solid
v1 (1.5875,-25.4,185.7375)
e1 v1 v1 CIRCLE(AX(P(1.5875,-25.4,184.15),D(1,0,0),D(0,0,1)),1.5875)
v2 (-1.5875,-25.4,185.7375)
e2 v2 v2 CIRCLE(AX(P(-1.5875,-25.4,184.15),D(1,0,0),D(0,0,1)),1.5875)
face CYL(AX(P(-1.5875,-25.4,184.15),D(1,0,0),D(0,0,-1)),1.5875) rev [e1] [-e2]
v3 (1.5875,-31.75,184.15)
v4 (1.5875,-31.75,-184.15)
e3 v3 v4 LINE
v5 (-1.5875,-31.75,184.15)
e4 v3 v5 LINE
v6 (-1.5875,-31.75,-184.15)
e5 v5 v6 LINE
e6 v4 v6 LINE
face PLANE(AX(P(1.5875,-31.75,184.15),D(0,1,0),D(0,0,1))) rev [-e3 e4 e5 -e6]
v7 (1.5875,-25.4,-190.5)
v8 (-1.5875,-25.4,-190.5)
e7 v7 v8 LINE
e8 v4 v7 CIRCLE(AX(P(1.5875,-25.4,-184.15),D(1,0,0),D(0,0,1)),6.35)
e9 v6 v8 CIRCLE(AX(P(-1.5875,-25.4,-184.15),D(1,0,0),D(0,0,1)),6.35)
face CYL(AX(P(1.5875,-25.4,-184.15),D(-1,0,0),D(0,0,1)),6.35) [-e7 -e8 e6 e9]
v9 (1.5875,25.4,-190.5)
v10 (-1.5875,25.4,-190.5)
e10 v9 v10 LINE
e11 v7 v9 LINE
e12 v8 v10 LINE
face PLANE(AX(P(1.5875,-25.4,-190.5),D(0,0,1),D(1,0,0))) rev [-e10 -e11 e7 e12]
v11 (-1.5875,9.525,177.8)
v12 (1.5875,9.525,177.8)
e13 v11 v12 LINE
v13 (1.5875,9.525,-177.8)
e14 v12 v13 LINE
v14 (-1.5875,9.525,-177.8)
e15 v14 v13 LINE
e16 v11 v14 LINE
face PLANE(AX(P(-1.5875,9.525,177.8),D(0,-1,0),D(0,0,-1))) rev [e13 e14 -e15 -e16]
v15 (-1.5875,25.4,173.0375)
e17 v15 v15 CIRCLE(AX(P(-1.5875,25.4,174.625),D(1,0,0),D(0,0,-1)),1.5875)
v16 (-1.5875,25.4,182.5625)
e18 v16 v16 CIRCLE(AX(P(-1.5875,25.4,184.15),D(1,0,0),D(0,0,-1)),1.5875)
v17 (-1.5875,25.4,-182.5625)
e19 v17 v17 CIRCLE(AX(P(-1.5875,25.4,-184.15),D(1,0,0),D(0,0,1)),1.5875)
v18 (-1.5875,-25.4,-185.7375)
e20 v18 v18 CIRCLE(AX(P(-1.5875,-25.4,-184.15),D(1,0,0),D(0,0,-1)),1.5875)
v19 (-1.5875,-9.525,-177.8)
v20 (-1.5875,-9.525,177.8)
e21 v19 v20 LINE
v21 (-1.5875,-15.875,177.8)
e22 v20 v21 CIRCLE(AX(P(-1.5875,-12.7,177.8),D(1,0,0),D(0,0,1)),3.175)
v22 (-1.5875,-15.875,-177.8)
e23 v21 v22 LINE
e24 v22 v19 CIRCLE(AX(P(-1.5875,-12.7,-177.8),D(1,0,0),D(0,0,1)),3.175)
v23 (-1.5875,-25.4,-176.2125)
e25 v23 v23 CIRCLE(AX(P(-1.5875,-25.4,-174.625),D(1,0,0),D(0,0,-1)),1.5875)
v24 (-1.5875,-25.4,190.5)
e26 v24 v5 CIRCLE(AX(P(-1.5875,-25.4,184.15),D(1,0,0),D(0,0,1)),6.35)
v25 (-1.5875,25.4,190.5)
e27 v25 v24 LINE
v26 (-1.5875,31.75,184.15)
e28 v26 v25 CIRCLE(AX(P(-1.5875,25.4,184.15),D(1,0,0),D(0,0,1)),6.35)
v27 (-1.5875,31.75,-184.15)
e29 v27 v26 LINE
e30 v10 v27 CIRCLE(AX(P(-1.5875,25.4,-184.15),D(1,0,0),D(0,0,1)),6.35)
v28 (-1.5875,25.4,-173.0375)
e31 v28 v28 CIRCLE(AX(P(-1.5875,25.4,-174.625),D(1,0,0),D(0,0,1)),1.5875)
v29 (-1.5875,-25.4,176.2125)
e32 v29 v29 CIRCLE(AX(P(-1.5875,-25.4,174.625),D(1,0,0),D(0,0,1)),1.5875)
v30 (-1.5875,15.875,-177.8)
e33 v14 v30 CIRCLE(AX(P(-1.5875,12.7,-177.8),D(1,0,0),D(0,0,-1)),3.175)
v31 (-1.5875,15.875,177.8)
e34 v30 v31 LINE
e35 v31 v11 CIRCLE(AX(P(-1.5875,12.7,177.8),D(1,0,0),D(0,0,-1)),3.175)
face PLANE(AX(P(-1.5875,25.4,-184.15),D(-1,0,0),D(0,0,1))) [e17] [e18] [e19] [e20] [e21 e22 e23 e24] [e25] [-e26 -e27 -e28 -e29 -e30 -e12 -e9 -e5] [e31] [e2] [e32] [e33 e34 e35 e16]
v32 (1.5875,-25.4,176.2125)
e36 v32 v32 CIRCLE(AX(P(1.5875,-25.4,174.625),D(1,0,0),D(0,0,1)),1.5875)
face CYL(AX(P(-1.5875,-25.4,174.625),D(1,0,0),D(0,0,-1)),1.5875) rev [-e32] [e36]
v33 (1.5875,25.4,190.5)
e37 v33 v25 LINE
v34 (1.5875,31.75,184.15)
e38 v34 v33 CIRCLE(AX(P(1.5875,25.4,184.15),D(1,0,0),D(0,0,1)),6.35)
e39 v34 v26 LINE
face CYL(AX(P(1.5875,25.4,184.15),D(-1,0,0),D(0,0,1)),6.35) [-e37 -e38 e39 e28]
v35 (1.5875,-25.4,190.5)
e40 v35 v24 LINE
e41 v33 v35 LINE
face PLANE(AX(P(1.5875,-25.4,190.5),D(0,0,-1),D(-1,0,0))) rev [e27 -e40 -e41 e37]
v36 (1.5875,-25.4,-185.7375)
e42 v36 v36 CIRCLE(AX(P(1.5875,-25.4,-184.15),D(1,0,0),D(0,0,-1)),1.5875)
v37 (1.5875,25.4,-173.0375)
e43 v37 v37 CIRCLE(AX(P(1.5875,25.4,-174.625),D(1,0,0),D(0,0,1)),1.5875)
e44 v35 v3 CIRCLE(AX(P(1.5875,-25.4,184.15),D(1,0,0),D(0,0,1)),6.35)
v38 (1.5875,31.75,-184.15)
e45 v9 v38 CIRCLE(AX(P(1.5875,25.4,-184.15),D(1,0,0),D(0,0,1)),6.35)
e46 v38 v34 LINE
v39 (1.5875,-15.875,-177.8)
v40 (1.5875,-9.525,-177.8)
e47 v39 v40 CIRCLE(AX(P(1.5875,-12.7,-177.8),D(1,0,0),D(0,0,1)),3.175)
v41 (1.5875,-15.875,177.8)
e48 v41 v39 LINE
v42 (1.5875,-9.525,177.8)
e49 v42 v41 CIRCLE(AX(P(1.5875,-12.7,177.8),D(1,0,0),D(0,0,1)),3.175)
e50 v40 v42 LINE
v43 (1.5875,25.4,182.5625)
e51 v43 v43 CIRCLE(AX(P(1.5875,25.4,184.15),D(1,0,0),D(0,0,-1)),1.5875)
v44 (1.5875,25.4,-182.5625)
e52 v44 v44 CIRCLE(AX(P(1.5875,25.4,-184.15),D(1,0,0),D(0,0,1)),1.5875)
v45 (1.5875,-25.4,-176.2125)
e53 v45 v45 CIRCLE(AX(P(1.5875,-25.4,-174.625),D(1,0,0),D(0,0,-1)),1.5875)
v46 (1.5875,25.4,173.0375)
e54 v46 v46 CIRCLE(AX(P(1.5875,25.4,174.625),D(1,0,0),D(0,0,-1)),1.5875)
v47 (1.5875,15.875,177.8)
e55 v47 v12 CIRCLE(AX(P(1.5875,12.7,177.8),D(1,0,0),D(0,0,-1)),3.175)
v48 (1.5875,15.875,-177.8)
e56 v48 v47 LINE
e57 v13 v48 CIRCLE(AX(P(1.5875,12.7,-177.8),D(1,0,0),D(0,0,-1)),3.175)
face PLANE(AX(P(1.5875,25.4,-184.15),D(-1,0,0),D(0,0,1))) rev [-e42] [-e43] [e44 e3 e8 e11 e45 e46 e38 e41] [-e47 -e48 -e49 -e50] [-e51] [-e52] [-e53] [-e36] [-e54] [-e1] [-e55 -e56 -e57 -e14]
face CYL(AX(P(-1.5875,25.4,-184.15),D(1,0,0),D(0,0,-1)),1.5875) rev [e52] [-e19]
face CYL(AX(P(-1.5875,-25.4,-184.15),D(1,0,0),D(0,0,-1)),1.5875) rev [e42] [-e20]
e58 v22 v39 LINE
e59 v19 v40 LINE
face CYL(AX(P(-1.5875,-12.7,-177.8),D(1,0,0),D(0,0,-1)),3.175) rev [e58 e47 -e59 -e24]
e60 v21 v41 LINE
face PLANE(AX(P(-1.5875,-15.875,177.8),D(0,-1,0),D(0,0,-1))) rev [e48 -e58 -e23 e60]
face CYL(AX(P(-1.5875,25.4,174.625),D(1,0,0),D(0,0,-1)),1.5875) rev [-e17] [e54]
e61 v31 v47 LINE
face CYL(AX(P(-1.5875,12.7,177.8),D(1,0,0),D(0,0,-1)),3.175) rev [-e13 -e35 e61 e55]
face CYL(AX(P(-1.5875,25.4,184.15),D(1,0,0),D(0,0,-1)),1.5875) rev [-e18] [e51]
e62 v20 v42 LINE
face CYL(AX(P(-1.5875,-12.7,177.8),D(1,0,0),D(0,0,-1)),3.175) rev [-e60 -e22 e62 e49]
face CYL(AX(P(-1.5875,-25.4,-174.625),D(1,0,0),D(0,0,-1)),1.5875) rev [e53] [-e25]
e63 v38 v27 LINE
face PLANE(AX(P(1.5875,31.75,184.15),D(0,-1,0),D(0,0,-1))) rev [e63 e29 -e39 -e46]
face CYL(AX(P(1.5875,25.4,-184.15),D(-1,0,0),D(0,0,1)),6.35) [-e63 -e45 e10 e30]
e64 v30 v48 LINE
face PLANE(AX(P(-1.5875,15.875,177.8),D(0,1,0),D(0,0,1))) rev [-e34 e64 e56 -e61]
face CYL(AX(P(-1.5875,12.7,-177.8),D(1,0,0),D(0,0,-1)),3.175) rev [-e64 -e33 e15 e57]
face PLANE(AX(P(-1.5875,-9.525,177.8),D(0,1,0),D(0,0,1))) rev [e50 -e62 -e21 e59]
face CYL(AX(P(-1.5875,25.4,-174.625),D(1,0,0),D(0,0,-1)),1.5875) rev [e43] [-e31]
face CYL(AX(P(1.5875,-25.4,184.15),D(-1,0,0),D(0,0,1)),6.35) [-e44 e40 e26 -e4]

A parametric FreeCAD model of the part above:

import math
import FreeCAD as App
import Part
import Sketcher

V = App.Vector
Q = App.Units.Quantity

doc = App.newDocument("Part")
body = doc.addObject("PartDesign::Body", "Body")

sketch1 = body.newObject("Sketcher::SketchObject", "Sketch")
sketch1.AttachmentSupport = (doc.getObject("YZ_Plane"), [""])
sketch1.MapMode = "FlatFace"
sketch1.addGeometry(Part.LineSegment(V(-32, 184, 0), V(-32, -184, 0)), False)
sketch1.addGeometry(Part.ArcOfCircle(Part.Circle(V(-25, -184, 0), V(0, 0, 1), 6), math.radians(180), math.radians(270)), False)
sketch1.addGeometry(Part.LineSegment(V(-25, -190, 0), V(25, -190, 0)), False)
sketch1.addGeometry(Part.ArcOfCircle(Part.Circle(V(25, -184, 0), V(0, 0, 1), 6), math.radians(-90), math.radians(0)), False)
sketch1.addGeometry(Part.LineSegment(V(32, -184, 0), V(32, 184, 0)), False)
sketch1.addGeometry(Part.ArcOfCircle(Part.Circle(V(25, 184, 0), V(0, 0, 1), 6), math.radians(0), math.radians(90)), False)
sketch1.addGeometry(Part.LineSegment(V(25, 190, 0), V(-25, 190, 0)), False)
sketch1.addGeometry(Part.ArcOfCircle(Part.Circle(V(-25, 184, 0), V(0, 0, 1), 6), math.radians(90), math.radians(180)), False)
sketch1.addConstraint(Sketcher.Constraint("Tangent", 0, 2, 1, 1))
sketch1.addConstraint(Sketcher.Constraint("Tangent", 1, 2, 2, 1))
sketch1.addConstraint(Sketcher.Constraint("Tangent", 2, 2, 3, 1))
sketch1.addConstraint(Sketcher.Constraint("Tangent", 3, 2, 4, 1))
sketch1.addConstraint(Sketcher.Constraint("Tangent", 4, 2, 5, 1))
sketch1.addConstraint(Sketcher.Constraint("Tangent", 5, 2, 6, 1))
sketch1.addConstraint(Sketcher.Constraint("Tangent", 6, 2, 7, 1))
sketch1.addConstraint(Sketcher.Constraint("Tangent", 7, 2, 0, 1))
sketch1.addConstraint(Sketcher.Constraint("Vertical", 0))
sketch1.addConstraint(Sketcher.Constraint("Horizontal", 2))
sketch1.addConstraint(Sketcher.Constraint("Vertical", 4))
sketch1.addConstraint(Sketcher.Constraint("Horizontal", 6))
sketch1.addConstraint(Sketcher.Constraint("Equal", 1, 3))
sketch1.addConstraint(Sketcher.Constraint("Equal", 3, 5))
sketch1.addConstraint(Sketcher.Constraint("Equal", 5, 7))
sketch1.addConstraint(Sketcher.Constraint("Symmetric", 1, 3, 5, 3, -1, 1))
sketch1.addConstraint(Sketcher.Constraint("DistanceX", 2, 1, 2, 2, Q("2 in")))
sketch1.addConstraint(Sketcher.Constraint("Radius", 1, Q("0.25 in")))
sketch1.addConstraint(Sketcher.Constraint("DistanceY", 0, 2, 0, 1, Q("14.5 in")))
pad1 = body.newObject("PartDesign::Pad", "Pad")
pad1.Profile = sketch1
pad1.Length = Q("0.125 in")
pad1.Midplane = True

sketch2 = body.newObject("Sketcher::SketchObject", "Sketch001")
sketch2.AttachmentSupport = (doc.getObject("YZ_Plane"), [""])
sketch2.MapMode = "FlatFace"
sketch2.AttachmentOffset = App.Placement(V(0, 0, 0.0625 * 25.4), App.Rotation())
sketch2.addGeometry(Part.LineSegment(V(15.9, -177.8, 0), V(15.9, 177.8, 0)), False)
sketch2.addGeometry(Part.ArcOfCircle(Part.Circle(V(12.7, 177.8, 0), V(0, 0, 1), 3.2), math.radians(0), math.radians(180)), False)
sketch2.addGeometry(Part.LineSegment(V(9.5, 177.8, 0), V(9.5, -177.8, 0)), False)
sketch2.addGeometry(Part.ArcOfCircle(Part.Circle(V(12.7, -177.8, 0), V(0, 0, 1), 3.2), math.radians(180), math.radians(360)), False)
sketch2.addGeometry(Part.LineSegment(V(-15.9, 177.8, 0), V(-15.9, -177.8, 0)), False)
sketch2.addGeometry(Part.ArcOfCircle(Part.Circle(V(-12.7, -177.8, 0), V(0, 0, 1), 3.2), math.radians(180), math.radians(360)), False)
sketch2.addGeometry(Part.LineSegment(V(-9.5, -177.8, 0), V(-9.5, 177.8, 0)), False)
sketch2.addGeometry(Part.ArcOfCircle(Part.Circle(V(-12.7, 177.8, 0), V(0, 0, 1), 3.2), math.radians(0), math.radians(180)), False)
sketch2.addConstraint(Sketcher.Constraint("Tangent", 0, 2, 1, 1))
sketch2.addConstraint(Sketcher.Constraint("Tangent", 1, 2, 2, 1))
sketch2.addConstraint(Sketcher.Constraint("Tangent", 2, 2, 3, 1))
sketch2.addConstraint(Sketcher.Constraint("Tangent", 3, 2, 0, 1))
sketch2.addConstraint(Sketcher.Constraint("Tangent", 4, 2, 5, 1))
sketch2.addConstraint(Sketcher.Constraint("Tangent", 5, 2, 6, 1))
sketch2.addConstraint(Sketcher.Constraint("Tangent", 6, 2, 7, 1))
sketch2.addConstraint(Sketcher.Constraint("Tangent", 7, 2, 4, 1))
sketch2.addConstraint(Sketcher.Constraint("Vertical", 0))
sketch2.addConstraint(Sketcher.Constraint("Vertical", 2))
sketch2.addConstraint(Sketcher.Constraint("Vertical", 4))
sketch2.addConstraint(Sketcher.Constraint("Vertical", 6))
sketch2.addConstraint(Sketcher.Constraint("Equal", 3, 5))
sketch2.addConstraint(Sketcher.Constraint("Symmetric", 1, 3, 5, 3, -1, 1))
sketch2.addConstraint(Sketcher.Constraint("Horizontal", 3, 3, 5, 3))
sketch2.addConstraint(Sketcher.Constraint("Horizontal", 1, 3, 7, 3))
sketch2.addConstraint(Sketcher.Constraint("DistanceY", 0, 1, 0, 2, Q("14 in")))
sketch2.addConstraint(Sketcher.Constraint("Radius", 1, Q("0.125 in")))
sketch2.addConstraint(Sketcher.Constraint("DistanceX", 5, 3, 3, 3, Q("1 in")))
pocket1 = body.newObject("PartDesign::Pocket", "Pocket")
pocket1.Profile = sketch2
pocket1.Type = "ThroughAll"

sketch3 = body.newObject("Sketcher::SketchObject", "Sketch002")
sketch3.AttachmentSupport = (doc.getObject("YZ_Plane"), [""])
sketch3.MapMode = "FlatFace"
sketch3.AttachmentOffset = App.Placement(V(0, 0, 0.0625 * 25.4), App.Rotation())
sketch3.addGeometry(Part.Circle(V(25.4, 184.2, 0), V(0, 0, 1), 1.6), False)
sketch3.addGeometry(Part.Circle(V(25.4, 174.6, 0), V(0, 0, 1), 1.6), False)
sketch3.addGeometry(Part.Circle(V(-25.4, 174.6, 0), V(0, 0, 1), 1.6), False)
sketch3.addGeometry(Part.Circle(V(-25.4, 184.2, 0), V(0, 0, 1), 1.6), False)
sketch3.addGeometry(Part.Circle(V(25.4, -174.6, 0), V(0, 0, 1), 1.6), False)
sketch3.addGeometry(Part.Circle(V(25.4, -184.2, 0), V(0, 0, 1), 1.6), False)
sketch3.addGeometry(Part.Circle(V(-25.4, -184.2, 0), V(0, 0, 1), 1.6), False)
sketch3.addGeometry(Part.Circle(V(-25.4, -174.6, 0), V(0, 0, 1), 1.6), False)
sketch3.addConstraint(Sketcher.Constraint("Equal", 0, 1))
sketch3.addConstraint(Sketcher.Constraint("Equal", 1, 2))
sketch3.addConstraint(Sketcher.Constraint("Equal", 2, 3))
sketch3.addConstraint(Sketcher.Constraint("Equal", 3, 4))
sketch3.addConstraint(Sketcher.Constraint("Equal", 4, 5))
sketch3.addConstraint(Sketcher.Constraint("Equal", 5, 6))
sketch3.addConstraint(Sketcher.Constraint("Equal", 6, 7))
sketch3.addConstraint(Sketcher.Constraint("Symmetric", 2, 3, 4, 3, -1, 1))
sketch3.addConstraint(Sketcher.Constraint("Symmetric", 3, 3, 5, 3, -1, 1))
sketch3.addConstraint(Sketcher.Constraint("Symmetric", 0, 3, 6, 3, -1, 1))
sketch3.addConstraint(Sketcher.Constraint("Symmetric", 1, 3, 7, 3, -1, 1))
sketch3.addConstraint(Sketcher.Constraint("Symmetric", 1, 3, 2, 3, -2))
sketch3.addConstraint(Sketcher.Constraint("Symmetric", 0, 3, 3, 3, -2))
sketch3.addConstraint(Sketcher.Constraint("Vertical", 0, 3, 1, 3))
sketch3.addConstraint(Sketcher.Constraint("Diameter", 0, Q("0.125 in")))
sketch3.addConstraint(Sketcher.Constraint("DistanceX", -1, 1, 0, 3, Q("1 in")))
sketch3.addConstraint(Sketcher.Constraint("DistanceY", 5, 3, 0, 3, Q("14.5 in")))
sketch3.addConstraint(Sketcher.Constraint("DistanceY", 4, 3, 1, 3, Q("13.75 in")))
pocket2 = body.newObject("PartDesign::Pocket", "Pocket001")
pocket2.Profile = sketch3
pocket2.Type = "ThroughAll"

doc.recompute()
